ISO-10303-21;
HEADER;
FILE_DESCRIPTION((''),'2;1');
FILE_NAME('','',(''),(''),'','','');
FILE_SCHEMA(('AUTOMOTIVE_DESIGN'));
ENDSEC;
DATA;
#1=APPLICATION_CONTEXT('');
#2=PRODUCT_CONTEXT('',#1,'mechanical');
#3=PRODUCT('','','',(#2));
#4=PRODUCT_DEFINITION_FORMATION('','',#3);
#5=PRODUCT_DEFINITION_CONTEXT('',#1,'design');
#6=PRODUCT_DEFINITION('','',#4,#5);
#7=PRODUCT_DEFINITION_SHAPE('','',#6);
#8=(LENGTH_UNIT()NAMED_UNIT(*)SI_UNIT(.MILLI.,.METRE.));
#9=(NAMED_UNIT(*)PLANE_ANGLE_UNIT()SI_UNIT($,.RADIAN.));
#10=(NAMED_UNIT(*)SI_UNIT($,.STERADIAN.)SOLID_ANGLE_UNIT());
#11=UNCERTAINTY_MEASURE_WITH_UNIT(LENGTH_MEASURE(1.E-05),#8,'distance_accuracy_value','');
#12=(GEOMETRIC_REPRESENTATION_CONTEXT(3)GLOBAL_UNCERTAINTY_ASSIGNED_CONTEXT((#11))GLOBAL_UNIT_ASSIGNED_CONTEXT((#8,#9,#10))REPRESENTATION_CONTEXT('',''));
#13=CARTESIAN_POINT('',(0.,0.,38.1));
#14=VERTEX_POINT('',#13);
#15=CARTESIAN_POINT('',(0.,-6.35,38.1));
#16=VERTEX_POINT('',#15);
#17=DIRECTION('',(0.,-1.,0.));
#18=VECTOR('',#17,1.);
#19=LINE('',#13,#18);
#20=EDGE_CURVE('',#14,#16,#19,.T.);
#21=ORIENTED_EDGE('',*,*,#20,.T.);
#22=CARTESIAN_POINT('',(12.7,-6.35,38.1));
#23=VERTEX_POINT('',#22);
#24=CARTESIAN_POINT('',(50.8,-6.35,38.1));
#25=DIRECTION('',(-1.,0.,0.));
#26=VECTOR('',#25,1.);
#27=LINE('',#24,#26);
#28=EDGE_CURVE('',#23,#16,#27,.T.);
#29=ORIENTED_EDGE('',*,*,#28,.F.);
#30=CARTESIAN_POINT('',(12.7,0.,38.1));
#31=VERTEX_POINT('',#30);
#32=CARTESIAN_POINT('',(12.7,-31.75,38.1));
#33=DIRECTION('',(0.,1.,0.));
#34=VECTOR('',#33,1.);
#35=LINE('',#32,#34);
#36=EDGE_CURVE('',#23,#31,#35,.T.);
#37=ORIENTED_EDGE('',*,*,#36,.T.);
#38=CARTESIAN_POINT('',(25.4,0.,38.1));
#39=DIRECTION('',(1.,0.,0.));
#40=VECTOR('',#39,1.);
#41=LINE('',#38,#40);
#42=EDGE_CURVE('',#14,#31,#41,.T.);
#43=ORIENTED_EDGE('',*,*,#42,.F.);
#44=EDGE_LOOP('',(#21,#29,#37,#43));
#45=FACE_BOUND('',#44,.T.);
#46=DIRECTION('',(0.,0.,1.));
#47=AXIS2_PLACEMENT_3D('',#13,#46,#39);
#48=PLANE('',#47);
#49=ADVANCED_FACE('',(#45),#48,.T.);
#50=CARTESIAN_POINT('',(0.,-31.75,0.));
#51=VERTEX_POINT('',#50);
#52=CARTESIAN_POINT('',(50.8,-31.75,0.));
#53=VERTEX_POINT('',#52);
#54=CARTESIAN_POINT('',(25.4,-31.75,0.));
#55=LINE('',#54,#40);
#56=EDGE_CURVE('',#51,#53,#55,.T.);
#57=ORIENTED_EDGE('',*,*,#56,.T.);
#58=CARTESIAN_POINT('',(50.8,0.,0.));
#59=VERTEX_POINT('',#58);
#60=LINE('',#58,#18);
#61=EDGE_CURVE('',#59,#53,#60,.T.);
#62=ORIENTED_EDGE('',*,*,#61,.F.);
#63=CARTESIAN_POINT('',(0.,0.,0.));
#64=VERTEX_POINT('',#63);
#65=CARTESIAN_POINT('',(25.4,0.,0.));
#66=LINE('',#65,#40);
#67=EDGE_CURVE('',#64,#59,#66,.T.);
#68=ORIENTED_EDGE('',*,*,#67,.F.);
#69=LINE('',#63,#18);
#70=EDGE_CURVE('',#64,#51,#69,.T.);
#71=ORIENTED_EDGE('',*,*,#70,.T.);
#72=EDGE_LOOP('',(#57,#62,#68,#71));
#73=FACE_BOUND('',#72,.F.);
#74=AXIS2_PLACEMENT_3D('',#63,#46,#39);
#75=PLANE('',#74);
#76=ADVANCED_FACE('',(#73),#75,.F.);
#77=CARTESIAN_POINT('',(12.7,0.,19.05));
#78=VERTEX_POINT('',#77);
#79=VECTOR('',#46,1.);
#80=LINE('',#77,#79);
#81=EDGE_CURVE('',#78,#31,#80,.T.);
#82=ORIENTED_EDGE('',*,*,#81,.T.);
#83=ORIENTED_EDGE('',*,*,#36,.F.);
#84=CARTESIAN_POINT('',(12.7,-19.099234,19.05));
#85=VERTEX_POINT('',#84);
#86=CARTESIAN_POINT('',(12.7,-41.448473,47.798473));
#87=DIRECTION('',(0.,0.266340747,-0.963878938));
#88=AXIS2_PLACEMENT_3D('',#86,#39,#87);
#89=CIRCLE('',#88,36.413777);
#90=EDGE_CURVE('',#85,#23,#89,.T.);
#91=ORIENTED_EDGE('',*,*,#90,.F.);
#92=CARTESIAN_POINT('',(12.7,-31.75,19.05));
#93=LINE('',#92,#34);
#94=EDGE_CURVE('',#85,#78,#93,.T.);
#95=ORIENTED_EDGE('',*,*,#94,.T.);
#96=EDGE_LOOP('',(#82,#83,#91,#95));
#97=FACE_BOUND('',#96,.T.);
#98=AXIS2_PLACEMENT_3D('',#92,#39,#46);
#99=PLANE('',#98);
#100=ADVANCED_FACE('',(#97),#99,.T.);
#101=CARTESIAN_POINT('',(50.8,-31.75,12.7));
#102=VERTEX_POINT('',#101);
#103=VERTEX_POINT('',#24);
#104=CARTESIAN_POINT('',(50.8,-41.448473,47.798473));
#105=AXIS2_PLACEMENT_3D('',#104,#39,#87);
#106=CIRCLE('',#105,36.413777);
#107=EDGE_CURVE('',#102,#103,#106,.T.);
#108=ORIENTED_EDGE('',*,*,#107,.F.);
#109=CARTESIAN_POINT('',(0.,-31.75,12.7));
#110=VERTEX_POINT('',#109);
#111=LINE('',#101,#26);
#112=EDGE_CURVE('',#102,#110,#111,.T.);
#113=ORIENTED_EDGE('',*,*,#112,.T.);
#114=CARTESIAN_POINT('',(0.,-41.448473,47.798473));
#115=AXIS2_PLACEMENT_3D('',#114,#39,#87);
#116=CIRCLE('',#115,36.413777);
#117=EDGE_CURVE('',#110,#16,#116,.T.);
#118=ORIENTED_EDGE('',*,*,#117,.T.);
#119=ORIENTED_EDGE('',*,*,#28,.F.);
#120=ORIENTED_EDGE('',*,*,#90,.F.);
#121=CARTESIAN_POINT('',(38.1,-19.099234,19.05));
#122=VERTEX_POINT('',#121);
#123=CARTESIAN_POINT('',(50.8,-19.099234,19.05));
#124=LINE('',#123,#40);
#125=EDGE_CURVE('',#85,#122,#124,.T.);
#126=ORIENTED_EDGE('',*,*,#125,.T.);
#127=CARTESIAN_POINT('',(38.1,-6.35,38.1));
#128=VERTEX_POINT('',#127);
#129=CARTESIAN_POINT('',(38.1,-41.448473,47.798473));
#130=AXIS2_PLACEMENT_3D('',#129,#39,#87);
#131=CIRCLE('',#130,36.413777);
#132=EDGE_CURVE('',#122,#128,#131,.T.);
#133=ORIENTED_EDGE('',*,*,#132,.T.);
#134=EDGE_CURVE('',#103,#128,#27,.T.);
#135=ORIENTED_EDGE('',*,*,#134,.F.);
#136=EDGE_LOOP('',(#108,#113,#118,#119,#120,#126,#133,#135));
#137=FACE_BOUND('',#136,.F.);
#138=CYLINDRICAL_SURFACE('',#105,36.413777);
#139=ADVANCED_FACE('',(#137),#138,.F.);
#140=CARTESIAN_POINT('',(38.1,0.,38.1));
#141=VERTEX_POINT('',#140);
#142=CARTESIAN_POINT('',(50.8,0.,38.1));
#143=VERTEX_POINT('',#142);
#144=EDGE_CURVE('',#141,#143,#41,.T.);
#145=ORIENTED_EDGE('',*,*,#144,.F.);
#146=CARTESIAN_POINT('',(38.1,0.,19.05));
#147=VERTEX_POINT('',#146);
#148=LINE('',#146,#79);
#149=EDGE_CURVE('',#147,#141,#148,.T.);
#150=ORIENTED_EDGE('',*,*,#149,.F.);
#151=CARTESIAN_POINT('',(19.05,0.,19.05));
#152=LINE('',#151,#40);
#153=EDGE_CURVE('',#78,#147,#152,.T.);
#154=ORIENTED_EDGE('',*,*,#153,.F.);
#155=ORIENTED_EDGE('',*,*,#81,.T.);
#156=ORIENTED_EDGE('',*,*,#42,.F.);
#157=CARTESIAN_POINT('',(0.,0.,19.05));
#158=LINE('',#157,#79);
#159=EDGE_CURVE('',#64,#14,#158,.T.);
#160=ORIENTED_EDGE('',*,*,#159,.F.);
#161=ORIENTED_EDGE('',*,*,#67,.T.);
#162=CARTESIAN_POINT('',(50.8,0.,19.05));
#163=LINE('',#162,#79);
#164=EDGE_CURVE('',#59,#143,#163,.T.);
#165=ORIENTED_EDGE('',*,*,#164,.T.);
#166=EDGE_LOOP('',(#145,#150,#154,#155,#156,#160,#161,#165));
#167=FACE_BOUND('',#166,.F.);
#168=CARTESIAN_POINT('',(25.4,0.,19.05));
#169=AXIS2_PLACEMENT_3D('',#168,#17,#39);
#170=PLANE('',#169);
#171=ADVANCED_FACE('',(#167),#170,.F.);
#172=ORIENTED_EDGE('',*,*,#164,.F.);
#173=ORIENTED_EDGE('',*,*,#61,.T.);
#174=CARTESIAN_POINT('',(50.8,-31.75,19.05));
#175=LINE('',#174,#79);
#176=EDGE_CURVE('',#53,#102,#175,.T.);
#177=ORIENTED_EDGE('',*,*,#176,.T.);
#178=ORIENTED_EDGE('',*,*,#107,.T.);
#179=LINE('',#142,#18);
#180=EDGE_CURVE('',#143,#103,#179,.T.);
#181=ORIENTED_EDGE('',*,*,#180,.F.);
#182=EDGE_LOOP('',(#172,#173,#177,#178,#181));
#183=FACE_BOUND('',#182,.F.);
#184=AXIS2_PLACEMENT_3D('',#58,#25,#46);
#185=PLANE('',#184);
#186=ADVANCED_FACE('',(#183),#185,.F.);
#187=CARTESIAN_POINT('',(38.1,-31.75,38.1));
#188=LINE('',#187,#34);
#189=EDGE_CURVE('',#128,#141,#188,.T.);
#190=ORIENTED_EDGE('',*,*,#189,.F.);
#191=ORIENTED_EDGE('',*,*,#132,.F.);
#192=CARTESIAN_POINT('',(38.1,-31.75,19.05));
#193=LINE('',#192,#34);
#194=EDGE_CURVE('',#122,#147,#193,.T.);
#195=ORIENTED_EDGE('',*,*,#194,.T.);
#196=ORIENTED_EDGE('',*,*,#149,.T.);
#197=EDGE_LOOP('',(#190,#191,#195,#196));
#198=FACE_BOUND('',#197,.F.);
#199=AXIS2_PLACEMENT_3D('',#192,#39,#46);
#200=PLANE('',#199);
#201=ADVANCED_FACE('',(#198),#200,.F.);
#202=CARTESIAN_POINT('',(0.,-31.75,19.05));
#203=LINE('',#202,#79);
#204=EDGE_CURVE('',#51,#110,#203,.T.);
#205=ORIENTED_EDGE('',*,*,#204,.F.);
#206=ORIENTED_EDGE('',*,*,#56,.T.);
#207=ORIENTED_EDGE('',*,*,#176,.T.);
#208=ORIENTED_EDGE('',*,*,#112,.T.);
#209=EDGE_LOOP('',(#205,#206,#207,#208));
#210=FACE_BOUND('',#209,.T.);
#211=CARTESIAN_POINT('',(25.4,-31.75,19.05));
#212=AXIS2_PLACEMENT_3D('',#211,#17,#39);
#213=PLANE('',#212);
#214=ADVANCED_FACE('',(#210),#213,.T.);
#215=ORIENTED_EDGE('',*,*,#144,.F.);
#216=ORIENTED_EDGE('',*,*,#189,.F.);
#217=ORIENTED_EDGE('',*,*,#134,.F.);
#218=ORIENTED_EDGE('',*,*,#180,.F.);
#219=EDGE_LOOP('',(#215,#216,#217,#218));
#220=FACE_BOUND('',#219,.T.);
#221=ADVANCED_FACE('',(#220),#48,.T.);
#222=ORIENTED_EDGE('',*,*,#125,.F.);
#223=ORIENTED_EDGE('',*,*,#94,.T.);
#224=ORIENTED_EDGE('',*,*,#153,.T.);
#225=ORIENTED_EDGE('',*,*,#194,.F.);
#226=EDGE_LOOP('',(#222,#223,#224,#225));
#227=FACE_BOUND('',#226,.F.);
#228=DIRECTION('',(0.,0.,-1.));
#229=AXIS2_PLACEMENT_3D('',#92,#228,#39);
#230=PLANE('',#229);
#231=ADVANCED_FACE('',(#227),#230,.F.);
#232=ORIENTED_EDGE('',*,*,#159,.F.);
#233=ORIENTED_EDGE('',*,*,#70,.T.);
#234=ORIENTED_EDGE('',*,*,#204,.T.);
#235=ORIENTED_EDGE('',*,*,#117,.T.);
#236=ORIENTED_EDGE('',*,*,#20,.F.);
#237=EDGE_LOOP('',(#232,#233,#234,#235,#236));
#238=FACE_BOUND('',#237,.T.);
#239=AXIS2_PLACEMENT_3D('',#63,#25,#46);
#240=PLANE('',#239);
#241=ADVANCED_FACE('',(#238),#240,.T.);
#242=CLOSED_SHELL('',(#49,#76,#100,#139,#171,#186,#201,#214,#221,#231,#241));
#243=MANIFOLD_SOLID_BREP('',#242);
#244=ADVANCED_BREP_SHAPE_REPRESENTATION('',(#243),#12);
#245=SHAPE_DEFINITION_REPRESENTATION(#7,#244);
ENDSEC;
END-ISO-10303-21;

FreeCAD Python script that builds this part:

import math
import FreeCAD as App
import Part
import Sketcher

V = App.Vector
Q = App.Units.Quantity


def add_polygon(sketch, points):
    """Adds a closed chain of lines whose ends are joined by coincident constraints."""
    first, n = sketch.GeometryCount, len(points)
    for a, b in zip(points, points[1:] + points[:1]):
        sketch.addGeometry(Part.LineSegment(App.Vector(*a, 0), App.Vector(*b, 0)), False)
    for i in range(n):
        sketch.addConstraint(Sketcher.Constraint("Coincident", first + i, 2, first + (i + 1) % n, 1))

doc = App.newDocument("Part")
params = doc.addObject("Spreadsheet::Sheet", "Params")
for row, (alias, value) in enumerate([
    ("sketch1_width", "2 in"),
    ("sketch1_height", "1.5 in"),
    ("pad1_length", "1.25 in"),
    ("sketch2_width", "1 in"),
    ("sketch2_height", "0.75 in"),
    ("pocket1_length", "1.5 in"),
    ("sketch3_width", "1 in"),
    ("pocket2_length", "3 in"),
], start=1):
    params.set(f"A{row}", alias)
    params.set(f"B{row}", "=" + value)
    params.setAlias(f"B{row}", alias)

body = doc.addObject("PartDesign::Body", "Body")

sketch1 = body.newObject("Sketcher::SketchObject", "Sketch")
sketch1.AttachmentSupport = (doc.getObject("XZ_Plane"), [""])
sketch1.MapMode = "FlatFace"
add_polygon(sketch1, [(0, 38.1), (0, 0), (50.8, 0), (50.8, 38.1)])
sketch1.addConstraint([
    Sketcher.Constraint("Vertical", 0),
    Sketcher.Constraint("Horizontal", 1),
    Sketcher.Constraint("Vertical", 2),
    Sketcher.Constraint("Horizontal", 3),
    Sketcher.Constraint("Coincident", 0, 2, -1, 1),
    Sketcher.Constraint("DistanceX", 1, 1, 1, 2, Q("2 in")),
    Sketcher.Constraint("DistanceY", 0, 2, 0, 1, Q("1.5 in")),
])
sketch1.setExpression("Constraints[9]", "Params.sketch1_width")
sketch1.setExpression("Constraints[10]", "Params.sketch1_height")
pad1 = body.newObject("PartDesign::Pad", "Pad")
pad1.Profile = sketch1
pad1.setExpression("Length", "Params.pad1_length")

sketch2 = body.newObject("Sketcher::SketchObject", "Sketch001")
sketch2.AttachmentSupport = (doc.getObject("XZ_Plane"), [""])
sketch2.MapMode = "FlatFace"
sketch2.AttachmentOffset = App.Placement(V(0, 0, 1.25 * 25.4), App.Rotation())
add_polygon(sketch2, [(12.7, 38.1), (12.7, 19.05), (38.1, 19.05), (38.1, 38.1)])
sketch2.addConstraint([
    Sketcher.Constraint("Vertical", 0),
    Sketcher.Constraint("Horizontal", 1),
    Sketcher.Constraint("Vertical", 2),
    Sketcher.Constraint("Horizontal", 3),
    Sketcher.Constraint("DistanceX", 1, 1, 1, 2, Q("1 in")),
    Sketcher.Constraint("DistanceY", 0, 2, 0, 1, Q("0.75 in")),
    Sketcher.Constraint("DistanceX", -1, 1, 0, 2, Q("0.5 in")),
    Sketcher.Constraint("DistanceY", -1, 1, 2, 2, Q("1.5 in")),
])
sketch2.setExpression("Constraints[8]", "Params.sketch2_width")
sketch2.setExpression("Constraints[9]", "Params.sketch2_height")
pocket1 = body.newObject("PartDesign::Pocket", "Pocket")
pocket1.Profile = sketch2
pocket1.setExpression("Length", "Params.pocket1_length")

sketch3 = body.newObject("Sketcher::SketchObject", "Sketch002")
sketch3.AttachmentSupport = (doc.getObject("YZ_Plane"), [""])
sketch3.MapMode = "FlatFace"
sketch3.AttachmentOffset = App.Placement(V(0, 0, 2 * 25.4), App.Rotation())
sketch3.addGeometry([
    Part.LineSegment(V(-6.35, 38.1, 0), V(-31.75, 38.1, 0)),
    Part.LineSegment(V(-31.75, 38.1, 0), V(-31.75, 12.7, 0)),
    Part.ArcOfCircle(Part.Circle(V(-41.448473, 47.798473, 0), V(0, 0, 1), 36.413777), math.radians(-74.553365), math.radians(-15.446635)),
], False)
sketch3.addConstraint([
    Sketcher.Constraint("Coincident", 0, 2, 1, 1),
    Sketcher.Constraint("Coincident", 1, 2, 2, 1),
    Sketcher.Constraint("Coincident", 2, 2, 0, 1),
    Sketcher.Constraint("Horizontal", 0),
    Sketcher.Constraint("Vertical", 1),
    Sketcher.Constraint("Equal", 0, 1),
    Sketcher.Constraint("DistanceX", 0, 2, 0, 1, Q("1 in")),
    Sketcher.Constraint("DistanceY", -1, 1, 0, 2, Q("1.5 in")),
    Sketcher.Constraint("DistanceX", 0, 2, -1, 1, Q("1.25 in")),
    Sketcher.Constraint("Radius", 2, Q("36.413777 mm")),
])
sketch3.setExpression("Constraints[6]", "Params.sketch3_width")
pocket2 = body.newObject("PartDesign::Pocket", "Pocket001")
pocket2.Profile = sketch3
pocket2.setExpression("Length", "Params.pocket2_length")

doc.recompute()
